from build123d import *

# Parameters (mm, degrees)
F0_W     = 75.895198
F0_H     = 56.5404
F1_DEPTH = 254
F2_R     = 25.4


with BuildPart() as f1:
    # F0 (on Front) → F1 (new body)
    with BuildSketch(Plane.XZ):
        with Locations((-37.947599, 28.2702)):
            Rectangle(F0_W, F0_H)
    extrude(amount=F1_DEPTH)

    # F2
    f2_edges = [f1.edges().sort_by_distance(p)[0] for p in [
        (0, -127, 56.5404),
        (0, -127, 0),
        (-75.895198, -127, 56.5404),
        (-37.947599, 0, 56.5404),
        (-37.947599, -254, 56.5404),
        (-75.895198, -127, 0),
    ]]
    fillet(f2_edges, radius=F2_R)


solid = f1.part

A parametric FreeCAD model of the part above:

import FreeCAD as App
import Part
import Sketcher
Q = App.Units.Quantity


def edges_at(feature, points):
    """Names of the edges that pass closest to the given points."""
    edges = feature.Shape.Edges
    near = lambda p: min(range(len(edges)), key=lambda i: edges[i].distToShape(Part.Vertex(*p))[0])
    return sorted({f"Edge{near(p) + 1}" for p in points})


def add_polygon(sketch, points):
    """Adds a closed chain of lines whose ends are joined by coincident constraints."""
    first, n = sketch.GeometryCount, len(points)
    for a, b in zip(points, points[1:] + points[:1]):
        sketch.addGeometry(Part.LineSegment(App.Vector(*a, 0), App.Vector(*b, 0)), False)
    for i in range(n):
        sketch.addConstraint(Sketcher.Constraint("Coincident", first + i, 2, first + (i + 1) % n, 1))

doc = App.newDocument("Part")
body = doc.addObject("PartDesign::Body", "Body")

# Sketch on XZ plane
sketch1 = body.newObject("Sketcher::SketchObject", "Sketch")
sketch1.AttachmentSupport = (doc.getObject("XZ_Plane"), [""])
sketch1.MapMode = "FlatFace"
add_polygon(sketch1, [(-75.895198, 56.5404), (-75.895198, 0), (0, 0), (0, 56.5404)])  # lines 0-3
sketch1.addConstraint([
    Sketcher.Constraint("Vertical", 0),
    Sketcher.Constraint("Horizontal", 1),
    Sketcher.Constraint("Vertical", 2),
    Sketcher.Constraint("Horizontal", 3),
    Sketcher.Constraint("Coincident", 1, 2, -1, 1),
    Sketcher.Constraint("DistanceX", 1, 1, 1, 2, Q("2.9879999 in")),
    Sketcher.Constraint("DistanceY", 0, 2, 0, 1, Q("2.226 in")),
])
pad1 = body.newObject("PartDesign::Pad", "Pad")
pad1.Profile = sketch1
pad1.Length = Q("10 in")
doc.recompute()

fillet = body.newObject("PartDesign::Fillet", "Fillet")
fillet.Base = (pad1, edges_at(pad1, [
    (0, -127, 56.54),
    (0, -127, 0),
    (-75.895, -127, 56.54),
    (-37.948, 0, 56.54),
    (-37.948, -254, 56.54),
    (-75.895, -127, 0),
]))
fillet.Radius = Q("1 in")

doc.recompute()
